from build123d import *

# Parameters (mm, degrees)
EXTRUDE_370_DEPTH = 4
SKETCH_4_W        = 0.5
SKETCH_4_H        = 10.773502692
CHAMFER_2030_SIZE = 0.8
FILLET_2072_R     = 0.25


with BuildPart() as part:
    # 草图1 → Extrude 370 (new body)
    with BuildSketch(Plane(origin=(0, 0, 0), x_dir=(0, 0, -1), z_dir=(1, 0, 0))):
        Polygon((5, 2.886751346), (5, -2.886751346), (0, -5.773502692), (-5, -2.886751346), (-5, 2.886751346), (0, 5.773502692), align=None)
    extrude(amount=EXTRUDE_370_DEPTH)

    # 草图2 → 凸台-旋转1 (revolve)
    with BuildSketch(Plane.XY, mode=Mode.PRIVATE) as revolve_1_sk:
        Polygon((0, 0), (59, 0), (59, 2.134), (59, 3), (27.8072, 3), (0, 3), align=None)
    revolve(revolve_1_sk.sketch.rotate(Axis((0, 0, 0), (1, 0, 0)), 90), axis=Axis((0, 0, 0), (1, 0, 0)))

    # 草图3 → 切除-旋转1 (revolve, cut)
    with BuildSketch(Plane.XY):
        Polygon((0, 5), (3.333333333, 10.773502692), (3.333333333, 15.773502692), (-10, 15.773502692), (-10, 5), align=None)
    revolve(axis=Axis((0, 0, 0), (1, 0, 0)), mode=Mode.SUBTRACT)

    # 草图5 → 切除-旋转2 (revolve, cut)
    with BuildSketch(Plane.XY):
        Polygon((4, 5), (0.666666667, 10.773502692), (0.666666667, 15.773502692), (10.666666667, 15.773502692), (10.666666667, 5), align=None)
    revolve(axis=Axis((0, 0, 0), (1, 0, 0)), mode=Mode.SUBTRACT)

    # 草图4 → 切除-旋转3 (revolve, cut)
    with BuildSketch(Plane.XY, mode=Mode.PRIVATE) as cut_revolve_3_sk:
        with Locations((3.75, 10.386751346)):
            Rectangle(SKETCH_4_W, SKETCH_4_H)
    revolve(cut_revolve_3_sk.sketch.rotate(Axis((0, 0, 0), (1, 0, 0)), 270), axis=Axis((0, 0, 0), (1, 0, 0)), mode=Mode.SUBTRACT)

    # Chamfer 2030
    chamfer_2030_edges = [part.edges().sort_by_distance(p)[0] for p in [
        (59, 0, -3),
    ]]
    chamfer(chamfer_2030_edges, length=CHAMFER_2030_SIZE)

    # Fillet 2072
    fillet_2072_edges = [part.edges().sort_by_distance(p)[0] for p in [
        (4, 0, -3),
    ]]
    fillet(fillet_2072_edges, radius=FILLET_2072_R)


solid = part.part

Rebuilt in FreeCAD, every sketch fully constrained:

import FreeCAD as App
import Part
import Sketcher
Q = App.Units.Quantity


def edges_at(feature, points):
    """Names of the edges that pass closest to the given points."""
    edges = feature.Shape.Edges
    near = lambda p: min(range(len(edges)), key=lambda i: edges[i].distToShape(Part.Vertex(*p))[0])
    return sorted({f"Edge{near(p) + 1}" for p in points})

doc = App.newDocument("Part")
body = doc.addObject("PartDesign::Body", "Body")

sketch1 = body.newObject("Sketcher::SketchObject", "Sketch")
sketch1.AttachmentSupport = (doc.getObject("YZ_Plane"), [""])
sketch1.MapMode = "FlatFace"
sketch1.addGeometry([
    Part.LineSegment(App.Vector(-3, -5, 0), App.Vector(3, -5, 0)),
    Part.LineSegment(App.Vector(3, -5, 0), App.Vector(6, 0, 0)),
    Part.LineSegment(App.Vector(6, 0, 0), App.Vector(3, 5, 0)),
    Part.LineSegment(App.Vector(3, 5, 0), App.Vector(-3, 5, 0)),
    Part.LineSegment(App.Vector(-3, 5, 0), App.Vector(-6, 0, 0)),
    Part.LineSegment(App.Vector(-6, 0, 0), App.Vector(-3, -5, 0)),
], False)
sketch1.addConstraint([
    Sketcher.Constraint("Coincident", 0, 2, 1, 1),
    Sketcher.Constraint("Coincident", 1, 2, 2, 1),
    Sketcher.Constraint("Coincident", 2, 2, 3, 1),
    Sketcher.Constraint("Coincident", 3, 2, 4, 1),
    Sketcher.Constraint("Coincident", 4, 2, 5, 1),
    Sketcher.Constraint("Coincident", 5, 2, 0, 1),
    Sketcher.Constraint("Horizontal", 0),
    Sketcher.Constraint("Horizontal", 3),
    Sketcher.Constraint("Symmetric", 0, 2, 3, 2, -1, 1),
    Sketcher.Constraint("Symmetric", 1, 2, 4, 2, -1, 1),
    Sketcher.Constraint("PointOnObject", 1, 2, -1),
    Sketcher.Constraint("Parallel", 2, 5),
    Sketcher.Constraint("Vertical", 0, 2, 2, 2),
    Sketcher.Constraint("Angle", 1, Q("60 deg")),
    Sketcher.Constraint("DistanceY", 0, 2, -1, 1, 5.0),
    Sketcher.Constraint("DistanceX", 0, 1, 0, 2, 5.773503),
])
pad1 = body.newObject("PartDesign::Pad", "Pad")
pad1.Profile = sketch1
pad1.Length = 4

sketch2 = body.newObject("Sketcher::SketchObject", "Sketch001")
sketch2.AttachmentSupport = (doc.getObject("XY_Plane"), [""])
sketch2.MapMode = "FlatFace"
sketch2.addGeometry([
    Part.LineSegment(App.Vector(0, 0, 0), App.Vector(59, 0, 0)),
    Part.LineSegment(App.Vector(59, 0, 0), App.Vector(59, 3, 0)),
    Part.LineSegment(App.Vector(59, 3, 0), App.Vector(0, 3, 0)),
    Part.LineSegment(App.Vector(0, 3, 0), App.Vector(0, 0, 0)),
], False)
sketch2.addConstraint([
    Sketcher.Constraint("Coincident", 0, 2, 1, 1),
    Sketcher.Constraint("Coincident", 1, 2, 2, 1),
    Sketcher.Constraint("Coincident", 2, 2, 3, 1),
    Sketcher.Constraint("Coincident", 3, 2, 0, 1),
    Sketcher.Constraint("Horizontal", 0),
    Sketcher.Constraint("Vertical", 1),
    Sketcher.Constraint("Horizontal", 2),
    Sketcher.Constraint("Vertical", 3),
    Sketcher.Constraint("Coincident", 3, 2, -1, 1),
    Sketcher.Constraint("DistanceX", 0, 1, 0, 2, 59.0),
    Sketcher.Constraint("DistanceY", 1, 1, 1, 2, 3.0),
])
revolution = body.newObject("PartDesign::Revolution", "Revolution")
revolution.Profile = sketch2
revolution.ReferenceAxis = (sketch2, ["H_Axis"])
revolution.Angle = 360

sketch3 = body.newObject("Sketcher::SketchObject", "Sketch002")
sketch3.AttachmentSupport = (doc.getObject("XY_Plane"), [""])
sketch3.MapMode = "FlatFace"
sketch3.addGeometry([
    Part.LineSegment(App.Vector(0, 5, 0), App.Vector(3, 11, 0)),
    Part.LineSegment(App.Vector(3, 11, 0), App.Vector(3, 16, 0)),
    Part.LineSegment(App.Vector(3, 16, 0), App.Vector(-10, 16, 0)),
    Part.LineSegment(App.Vector(-10, 16, 0), App.Vector(-10, 5, 0)),
    Part.LineSegment(App.Vector(-10, 5, 0), App.Vector(0, 5, 0)),
], False)
sketch3.addConstraint([
    Sketcher.Constraint("Coincident", 0, 2, 1, 1),
    Sketcher.Constraint("Coincident", 1, 2, 2, 1),
    Sketcher.Constraint("Coincident", 2, 2, 3, 1),
    Sketcher.Constraint("Coincident", 3, 2, 4, 1),
    Sketcher.Constraint("Coincident", 4, 2, 0, 1),
    Sketcher.Constraint("Vertical", 1),
    Sketcher.Constraint("Horizontal", 2),
    Sketcher.Constraint("Vertical", 3),
    Sketcher.Constraint("Horizontal", 4),
    Sketcher.Constraint("PointOnObject", 4, 2, -2),
    Sketcher.Constraint("DistanceX", 4, 1, 4, 2, 10.0),
    Sketcher.Constraint("DistanceY", 1, 1, 1, 2, 5.0),
    Sketcher.Constraint("Angle", 0, Q("60 deg")),
    Sketcher.Constraint("DistanceY", -1, 1, 3, 2, 5.0),
    Sketcher.Constraint("DistanceX", 2, 2, 2, 1, 13.333333),
])
groove = body.newObject("PartDesign::Groove", "Groove")
groove.Profile = sketch3
groove.ReferenceAxis = (sketch3, ["H_Axis"])
groove.Angle = 360

sketch4 = body.newObject("Sketcher::SketchObject", "Sketch003")
sketch4.AttachmentSupport = (doc.getObject("XY_Plane"), [""])
sketch4.MapMode = "FlatFace"
sketch4.addGeometry([
    Part.LineSegment(App.Vector(1, 11, 0), App.Vector(4, 5, 0)),
    Part.LineSegment(App.Vector(4, 5, 0), App.Vector(11, 5, 0)),
    Part.LineSegment(App.Vector(11, 5, 0), App.Vector(11, 16, 0)),
    Part.LineSegment(App.Vector(11, 16, 0), App.Vector(1, 16, 0)),
    Part.LineSegment(App.Vector(1, 16, 0), App.Vector(1, 11, 0)),
], False)
sketch4.addConstraint([
    Sketcher.Constraint("Coincident", 0, 2, 1, 1),
    Sketcher.Constraint("Coincident", 1, 2, 2, 1),
    Sketcher.Constraint("Coincident", 2, 2, 3, 1),
    Sketcher.Constraint("Coincident", 3, 2, 4, 1),
    Sketcher.Constraint("Coincident", 4, 2, 0, 1),
    Sketcher.Constraint("Horizontal", 1),
    Sketcher.Constraint("Vertical", 2),
    Sketcher.Constraint("Horizontal", 3),
    Sketcher.Constraint("Vertical", 4),
    Sketcher.Constraint("DistanceX", 3, 2, 3, 1, 10.0),
    Sketcher.Constraint("DistanceY", 4, 2, 4, 1, 5.0),
    Sketcher.Constraint("Angle", 0, Q("-60 deg")),
    Sketcher.Constraint("DistanceX", -1, 1, 0, 2, 4.0),
    Sketcher.Constraint("DistanceY", -1, 1, 0, 2, 5.0),
    Sketcher.Constraint("DistanceX", 1, 1, 1, 2, 6.666667),
])
groove2 = body.newObject("PartDesign::Groove", "Groove001")
groove2.Profile = sketch4
groove2.ReferenceAxis = (sketch4, ["H_Axis"])
groove2.Angle = 360

sketch5 = body.newObject("Sketcher::SketchObject", "Sketch004")
sketch5.AttachmentSupport = (doc.getObject("XY_Plane"), [""])
sketch5.MapMode = "FlatFace"
sketch5.addGeometry([
    Part.LineSegment(App.Vector(3.5, 15.8, 0), App.Vector(3.5, 5, 0)),
    Part.LineSegment(App.Vector(3.5, 5, 0), App.Vector(4, 5, 0)),
    Part.LineSegment(App.Vector(4, 5, 0), App.Vector(4, 15.8, 0)),
    Part.LineSegment(App.Vector(4, 15.8, 0), App.Vector(3.5, 15.8, 0)),
], False)
sketch5.addConstraint([
    Sketcher.Constraint("Coincident", 0, 2, 1, 1),
    Sketcher.Constraint("Coincident", 1, 2, 2, 1),
    Sketcher.Constraint("Coincident", 2, 2, 3, 1),
    Sketcher.Constraint("Coincident", 3, 2, 0, 1),
    Sketcher.Constraint("Vertical", 0),
    Sketcher.Constraint("Horizontal", 1),
    Sketcher.Constraint("Vertical", 2),
    Sketcher.Constraint("Horizontal", 3),
    Sketcher.Constraint("DistanceX", 1, 1, 1, 2, 0.5),
    Sketcher.Constraint("DistanceY", -1, 1, 0, 2, 5.0),
    Sketcher.Constraint("DistanceX", -1, 1, 1, 2, 4.0),
    Sketcher.Constraint("DistanceY", 0, 2, 0, 1, 10.773503),
])
groove3 = body.newObject("PartDesign::Groove", "Groove002")
groove3.Profile = sketch5
groove3.ReferenceAxis = (sketch5, ["H_Axis"])
groove3.Angle = 360
doc.recompute()

chamfer = body.newObject("PartDesign::Chamfer", "Chamfer")
chamfer.Base = (groove3, edges_at(groove3, [(59, 0, -3)]))
chamfer.Size = 0.8
doc.recompute()

fillet = body.newObject("PartDesign::Fillet", "Fillet")
fillet.Base = (chamfer, edges_at(chamfer, [(4, 0, -3)]))
fillet.Radius = 0.25

doc.recompute()
